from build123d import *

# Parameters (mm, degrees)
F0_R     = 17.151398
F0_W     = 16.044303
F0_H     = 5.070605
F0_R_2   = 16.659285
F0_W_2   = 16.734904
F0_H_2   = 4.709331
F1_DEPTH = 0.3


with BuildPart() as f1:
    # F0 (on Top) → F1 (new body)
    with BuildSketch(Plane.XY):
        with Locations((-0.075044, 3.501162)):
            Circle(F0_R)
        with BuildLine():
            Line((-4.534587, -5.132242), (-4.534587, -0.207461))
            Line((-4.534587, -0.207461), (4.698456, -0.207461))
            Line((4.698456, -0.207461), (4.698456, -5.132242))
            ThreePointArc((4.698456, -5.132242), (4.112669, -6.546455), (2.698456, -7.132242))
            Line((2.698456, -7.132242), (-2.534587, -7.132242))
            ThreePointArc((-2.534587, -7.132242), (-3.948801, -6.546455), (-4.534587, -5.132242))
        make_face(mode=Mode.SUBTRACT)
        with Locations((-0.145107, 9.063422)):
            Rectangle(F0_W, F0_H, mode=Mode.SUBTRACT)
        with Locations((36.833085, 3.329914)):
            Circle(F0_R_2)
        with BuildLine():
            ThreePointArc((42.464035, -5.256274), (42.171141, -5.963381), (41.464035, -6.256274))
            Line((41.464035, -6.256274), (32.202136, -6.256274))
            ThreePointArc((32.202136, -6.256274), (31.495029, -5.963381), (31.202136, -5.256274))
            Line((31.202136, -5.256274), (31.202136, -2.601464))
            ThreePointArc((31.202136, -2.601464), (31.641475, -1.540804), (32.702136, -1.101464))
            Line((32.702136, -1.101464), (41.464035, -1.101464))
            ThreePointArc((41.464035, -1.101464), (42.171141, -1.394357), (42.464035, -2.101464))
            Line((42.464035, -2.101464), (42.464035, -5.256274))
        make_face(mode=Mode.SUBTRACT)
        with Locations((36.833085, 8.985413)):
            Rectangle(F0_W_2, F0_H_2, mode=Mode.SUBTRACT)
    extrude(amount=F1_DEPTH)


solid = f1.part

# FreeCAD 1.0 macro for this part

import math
import FreeCAD as App
import Part
import Sketcher
from FreeCAD import Vector

doc = App.newDocument("Part")
body = doc.addObject("PartDesign::Body", "Body")
body.AllowCompound = True

sketch1 = body.newObject("Sketcher::SketchObject", "Sketch")
sketch1.AttachmentSupport = (doc.getObject("XY_Plane"), [""])
sketch1.MapMode = "FlatFace"
sketch1.addGeometry(Part.Circle(Vector(-0.1, 3.5, 0), Vector(0, 0, 1), 17.2), False)
sketch1.addGeometry(Part.ArcOfCircle(Part.Circle(Vector(-2.5, -5.1, 0), Vector(0, 0, 1), 2), math.radians(-180), math.radians(-90)), False)
sketch1.addGeometry(Part.LineSegment(Vector(-4.5, -5.1, 0), Vector(-4.5, -0.2, 0)), False)
sketch1.addGeometry(Part.LineSegment(Vector(-4.5, -0.2, 0), Vector(4.7, -0.2, 0)), False)
sketch1.addGeometry(Part.LineSegment(Vector(4.7, -0.2, 0), Vector(4.7, -5.1, 0)), False)
sketch1.addGeometry(Part.ArcOfCircle(Part.Circle(Vector(2.7, -5.1, 0), Vector(0, 0, 1), 2), math.radians(-90), math.radians(0)), False)
sketch1.addGeometry(Part.LineSegment(Vector(2.7, -7.1, 0), Vector(-2.5, -7.1, 0)), False)
sketch1.addGeometry(Part.LineSegment(Vector(7.9, 6.5, 0), Vector(-8.2, 6.5, 0)), False)
sketch1.addGeometry(Part.LineSegment(Vector(-8.2, 6.5, 0), Vector(-8.2, 11.6, 0)), False)
sketch1.addGeometry(Part.LineSegment(Vector(-8.2, 11.6, 0), Vector(7.9, 11.6, 0)), False)
sketch1.addGeometry(Part.LineSegment(Vector(7.9, 11.6, 0), Vector(7.9, 6.5, 0)), False)
sketch1.addGeometry(Part.Circle(Vector(36.8, 3.3, 0), Vector(0, 0, 1), 16.7), False)
sketch1.addGeometry(Part.LineSegment(Vector(42.5, -2.1, 0), Vector(42.5, -5.3, 0)), False)
sketch1.addGeometry(Part.ArcOfCircle(Part.Circle(Vector(41.5, -5.3, 0), Vector(0, 0, 1), 1), math.radians(-90), math.radians(0)), False)
sketch1.addGeometry(Part.LineSegment(Vector(41.5, -6.3, 0), Vector(32.2, -6.3, 0)), False)
sketch1.addGeometry(Part.ArcOfCircle(Part.Circle(Vector(32.2, -5.3, 0), Vector(0, 0, 1), 1), math.radians(180), math.radians(270)), False)
sketch1.addGeometry(Part.LineSegment(Vector(31.2, -5.3, 0), Vector(31.2, -2.6, 0)), False)
sketch1.addGeometry(Part.ArcOfCircle(Part.Circle(Vector(32.7, -2.6, 0), Vector(0, 0, 1), 1.5), math.radians(90), math.radians(180)), False)
sketch1.addGeometry(Part.LineSegment(Vector(32.7, -1.1, 0), Vector(41.5, -1.1, 0)), False)
sketch1.addGeometry(Part.ArcOfCircle(Part.Circle(Vector(41.5, -2.1, 0), Vector(0, 0, 1), 1), math.radians(0), math.radians(90)), False)
sketch1.addGeometry(Part.LineSegment(Vector(45.2, 6.6, 0), Vector(28.5, 6.6, 0)), False)
sketch1.addGeometry(Part.LineSegment(Vector(28.5, 6.6, 0), Vector(28.5, 11.3, 0)), False)
sketch1.addGeometry(Part.LineSegment(Vector(28.5, 11.3, 0), Vector(45.2, 11.3, 0)), False)
sketch1.addGeometry(Part.LineSegment(Vector(45.2, 11.3, 0), Vector(45.2, 6.6, 0)), False)
sketch1.addConstraint(Sketcher.Constraint("Tangent", 1, 1, 2, 1))
sketch1.addConstraint(Sketcher.Constraint("Coincident", 2, 2, 3, 1))
sketch1.addConstraint(Sketcher.Constraint("Coincident", 3, 2, 4, 1))
sketch1.addConstraint(Sketcher.Constraint("Tangent", 4, 2, 5, 2))
sketch1.addConstraint(Sketcher.Constraint("Tangent", 5, 1, 6, 1))
sketch1.addConstraint(Sketcher.Constraint("Tangent", 6, 2, 1, 2))
sketch1.addConstraint(Sketcher.Constraint("Coincident", 7, 2, 8, 1))
sketch1.addConstraint(Sketcher.Constraint("Coincident", 8, 2, 9, 1))
sketch1.addConstraint(Sketcher.Constraint("Coincident", 9, 2, 10, 1))
sketch1.addConstraint(Sketcher.Constraint("Coincident", 10, 2, 7, 1))
sketch1.addConstraint(Sketcher.Constraint("Tangent", 12, 2, 13, 2))
sketch1.addConstraint(Sketcher.Constraint("Tangent", 13, 1, 14, 1))
sketch1.addConstraint(Sketcher.Constraint("Tangent", 14, 2, 15, 2))
sketch1.addConstraint(Sketcher.Constraint("Tangent", 15, 1, 16, 1))
sketch1.addConstraint(Sketcher.Constraint("Tangent", 16, 2, 17, 2))
sketch1.addConstraint(Sketcher.Constraint("Tangent", 17, 1, 18, 1))
sketch1.addConstraint(Sketcher.Constraint("Tangent", 18, 2, 19, 2))
sketch1.addConstraint(Sketcher.Constraint("Tangent", 19, 1, 12, 1))
sketch1.addConstraint(Sketcher.Constraint("Coincident", 20, 2, 21, 1))
sketch1.addConstraint(Sketcher.Constraint("Coincident", 21, 2, 22, 1))
sketch1.addConstraint(Sketcher.Constraint("Coincident", 22, 2, 23, 1))
sketch1.addConstraint(Sketcher.Constraint("Coincident", 23, 2, 20, 1))
sketch1.addConstraint(Sketcher.Constraint("Vertical", 2))
sketch1.addConstraint(Sketcher.Constraint("Horizontal", 3))
sketch1.addConstraint(Sketcher.Constraint("Vertical", 4))
sketch1.addConstraint(Sketcher.Constraint("Horizontal", 6))
sketch1.addConstraint(Sketcher.Constraint("Horizontal", 7))
sketch1.addConstraint(Sketcher.Constraint("Vertical", 8))
sketch1.addConstraint(Sketcher.Constraint("Horizontal", 9))
sketch1.addConstraint(Sketcher.Constraint("Vertical", 10))
sketch1.addConstraint(Sketcher.Constraint("Vertical", 12))
sketch1.addConstraint(Sketcher.Constraint("Horizontal", 14))
sketch1.addConstraint(Sketcher.Constraint("Vertical", 16))
sketch1.addConstraint(Sketcher.Constraint("Horizontal", 18))
sketch1.addConstraint(Sketcher.Constraint("Horizontal", 20))
sketch1.addConstraint(Sketcher.Constraint("Vertical", 21))
sketch1.addConstraint(Sketcher.Constraint("Horizontal", 22))
sketch1.addConstraint(Sketcher.Constraint("Vertical", 23))
sketch1.addConstraint(Sketcher.Constraint("Equal", 1, 5))
sketch1.addConstraint(Sketcher.Constraint("Equal", 13, 15))
sketch1.addConstraint(Sketcher.Constraint("Equal", 15, 19))
sketch1.addConstraint(Sketcher.Constraint("Radius", 1, 2.0))
sketch1.addConstraint(Sketcher.Constraint("Radius", 13, 1.000001))
sketch1.addConstraint(Sketcher.Constraint("Radius", 17, 1.499999))
sketch1.addConstraint(Sketcher.Constraint("Diameter", 11, 33.31857))
sketch1.addConstraint(Sketcher.Constraint("Diameter", 0, 34.302796))
sketch1.addConstraint(Sketcher.Constraint("DistanceX", 14, 2, 14, 1, 9.261899))
sketch1.addConstraint(Sketcher.Constraint("DistanceY", 2, 1, 2, 2, 4.924781))
sketch1.addConstraint(Sketcher.Constraint("DistanceY", 12, 2, 12, 1, 3.15481))
sketch1.addConstraint(Sketcher.Constraint("DistanceY", 21, 1, 21, 2, 4.709331))
sketch1.addConstraint(Sketcher.Constraint("DistanceX", 0, 3, 5, 3, 2.773498))
sketch1.addConstraint(Sketcher.Constraint("DistanceX", 20, 2, 17, 3, 4.236502))
sketch1.addConstraint(Sketcher.Constraint("DistanceX", 18, 2, 22, 2, 3.736502))
sketch1.addConstraint(Sketcher.Constraint("DistanceX", 3, 1, 3, 2, 9.233043))
sketch1.addConstraint(Sketcher.Constraint("DistanceX", 7, 2, 7, 1, 16.044303))
sketch1.addConstraint(Sketcher.Constraint("DistanceY", 8, 1, 8, 2, 5.070605))
sketch1.addConstraint(Sketcher.Constraint("DistanceY", -1, 1, 0, 3, 3.501162))
sketch1.addConstraint(Sketcher.Constraint("DistanceY", 1, 3, -1, 1, 5.132242))
sketch1.addConstraint(Sketcher.Constraint("DistanceX", 7, 2, -1, 1, 8.167259))
sketch1.addConstraint(Sketcher.Constraint("DistanceY", -1, 1, 7, 2, 6.528119))
sketch1.addConstraint(Sketcher.Constraint("DistanceY", -1, 1, 21, 2, 11.340079))
sketch1.addConstraint(Sketcher.Constraint("DistanceX", 5, 3, 11, 3, 34.134631))
sketch1.addConstraint(Sketcher.Constraint("DistanceX", 11, 3, 13, 3, 4.630949))
sketch1.addConstraint(Sketcher.Constraint("DistanceY", 13, 3, 1, 3, 0.124031))
sketch1.addConstraint(Sketcher.Constraint("DistanceY", 15, 3, 11, 3, 8.586189))
sketch1.addConstraint(Sketcher.Constraint("DistanceX", 7, 2, 2, 2, 3.632672))
pad1 = body.newObject("PartDesign::Pad", "Pad")
pad1.Profile = sketch1
pad1.Length = 0.3

doc.recompute()
